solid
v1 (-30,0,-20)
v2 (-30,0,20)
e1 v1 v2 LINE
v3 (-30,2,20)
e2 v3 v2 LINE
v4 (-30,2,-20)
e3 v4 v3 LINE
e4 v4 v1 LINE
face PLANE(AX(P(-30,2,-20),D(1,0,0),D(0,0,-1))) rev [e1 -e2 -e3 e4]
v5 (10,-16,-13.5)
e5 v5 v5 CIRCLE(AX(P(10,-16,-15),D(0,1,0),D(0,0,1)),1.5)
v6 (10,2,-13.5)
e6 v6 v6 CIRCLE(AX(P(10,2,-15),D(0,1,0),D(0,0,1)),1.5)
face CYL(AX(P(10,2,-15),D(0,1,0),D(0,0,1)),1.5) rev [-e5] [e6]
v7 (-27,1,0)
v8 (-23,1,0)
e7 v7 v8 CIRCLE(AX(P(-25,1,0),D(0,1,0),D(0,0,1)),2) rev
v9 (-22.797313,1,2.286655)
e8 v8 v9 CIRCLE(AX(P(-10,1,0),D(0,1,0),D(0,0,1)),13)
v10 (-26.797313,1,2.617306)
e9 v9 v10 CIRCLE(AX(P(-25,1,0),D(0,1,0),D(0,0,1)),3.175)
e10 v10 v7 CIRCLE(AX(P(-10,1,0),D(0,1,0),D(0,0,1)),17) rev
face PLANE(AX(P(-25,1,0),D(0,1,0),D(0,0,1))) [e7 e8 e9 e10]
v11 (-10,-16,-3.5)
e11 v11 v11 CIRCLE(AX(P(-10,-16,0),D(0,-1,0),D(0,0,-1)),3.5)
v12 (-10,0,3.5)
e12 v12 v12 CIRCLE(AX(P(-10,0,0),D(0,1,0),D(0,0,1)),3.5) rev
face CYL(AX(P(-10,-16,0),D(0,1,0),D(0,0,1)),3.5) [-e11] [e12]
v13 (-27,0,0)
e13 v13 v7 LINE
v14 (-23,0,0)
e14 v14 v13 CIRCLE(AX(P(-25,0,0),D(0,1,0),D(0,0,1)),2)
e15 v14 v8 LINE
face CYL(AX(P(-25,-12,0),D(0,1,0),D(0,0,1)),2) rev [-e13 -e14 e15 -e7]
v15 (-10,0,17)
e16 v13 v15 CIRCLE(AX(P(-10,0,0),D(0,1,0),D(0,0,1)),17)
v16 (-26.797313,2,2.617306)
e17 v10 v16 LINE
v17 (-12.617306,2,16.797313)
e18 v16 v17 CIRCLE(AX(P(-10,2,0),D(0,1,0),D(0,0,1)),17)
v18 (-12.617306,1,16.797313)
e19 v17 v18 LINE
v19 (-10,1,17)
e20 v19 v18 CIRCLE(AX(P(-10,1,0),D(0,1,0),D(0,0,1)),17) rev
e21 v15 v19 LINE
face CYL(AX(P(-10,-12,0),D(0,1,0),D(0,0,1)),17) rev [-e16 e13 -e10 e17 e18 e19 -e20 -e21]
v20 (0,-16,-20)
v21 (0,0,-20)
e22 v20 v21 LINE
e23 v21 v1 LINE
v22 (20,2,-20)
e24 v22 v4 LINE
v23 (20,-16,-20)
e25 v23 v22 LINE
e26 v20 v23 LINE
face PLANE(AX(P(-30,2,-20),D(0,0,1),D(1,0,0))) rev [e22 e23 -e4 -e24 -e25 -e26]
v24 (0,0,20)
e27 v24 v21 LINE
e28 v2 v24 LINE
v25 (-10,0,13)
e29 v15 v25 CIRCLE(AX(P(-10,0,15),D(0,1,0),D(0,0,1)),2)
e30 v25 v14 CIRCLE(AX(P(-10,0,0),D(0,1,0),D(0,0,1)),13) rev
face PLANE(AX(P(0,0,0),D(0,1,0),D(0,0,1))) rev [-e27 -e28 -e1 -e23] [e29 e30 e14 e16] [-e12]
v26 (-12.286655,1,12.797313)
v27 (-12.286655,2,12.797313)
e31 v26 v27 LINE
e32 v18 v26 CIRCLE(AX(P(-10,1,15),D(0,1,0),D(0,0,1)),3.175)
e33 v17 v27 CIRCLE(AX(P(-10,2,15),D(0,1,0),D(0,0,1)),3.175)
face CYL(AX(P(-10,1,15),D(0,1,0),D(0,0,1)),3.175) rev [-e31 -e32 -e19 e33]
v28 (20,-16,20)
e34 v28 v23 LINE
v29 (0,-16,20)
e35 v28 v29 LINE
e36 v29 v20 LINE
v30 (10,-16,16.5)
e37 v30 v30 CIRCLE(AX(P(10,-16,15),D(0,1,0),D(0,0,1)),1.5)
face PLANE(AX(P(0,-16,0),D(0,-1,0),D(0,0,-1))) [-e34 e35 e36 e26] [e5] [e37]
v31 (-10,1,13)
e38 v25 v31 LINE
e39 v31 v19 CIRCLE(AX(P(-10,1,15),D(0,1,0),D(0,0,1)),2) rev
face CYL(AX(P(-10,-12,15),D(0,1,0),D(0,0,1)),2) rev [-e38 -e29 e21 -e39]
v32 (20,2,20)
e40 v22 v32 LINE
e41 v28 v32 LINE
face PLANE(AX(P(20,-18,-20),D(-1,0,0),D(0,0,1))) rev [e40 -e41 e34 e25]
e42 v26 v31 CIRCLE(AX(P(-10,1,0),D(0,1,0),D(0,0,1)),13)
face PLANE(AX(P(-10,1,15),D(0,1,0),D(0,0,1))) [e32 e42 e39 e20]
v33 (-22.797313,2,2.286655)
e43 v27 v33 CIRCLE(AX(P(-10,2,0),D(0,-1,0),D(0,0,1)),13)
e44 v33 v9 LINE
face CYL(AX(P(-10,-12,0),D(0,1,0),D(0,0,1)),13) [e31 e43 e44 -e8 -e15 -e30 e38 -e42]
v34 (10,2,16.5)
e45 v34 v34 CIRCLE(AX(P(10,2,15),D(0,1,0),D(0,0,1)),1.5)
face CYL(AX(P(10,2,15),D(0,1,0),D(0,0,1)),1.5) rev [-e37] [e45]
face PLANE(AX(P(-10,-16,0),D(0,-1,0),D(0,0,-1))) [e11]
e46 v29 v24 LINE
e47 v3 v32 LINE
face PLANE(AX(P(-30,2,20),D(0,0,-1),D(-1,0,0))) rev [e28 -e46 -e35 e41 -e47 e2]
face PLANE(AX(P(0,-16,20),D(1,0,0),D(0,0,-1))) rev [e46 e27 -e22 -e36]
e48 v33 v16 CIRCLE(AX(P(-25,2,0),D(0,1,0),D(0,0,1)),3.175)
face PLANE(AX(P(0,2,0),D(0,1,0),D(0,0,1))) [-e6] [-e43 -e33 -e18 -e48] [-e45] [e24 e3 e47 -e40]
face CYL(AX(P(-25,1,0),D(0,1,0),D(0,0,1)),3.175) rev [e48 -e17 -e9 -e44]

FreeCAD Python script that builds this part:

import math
import FreeCAD as App
import Part
import Sketcher
from FreeCAD import Vector


def add_polygon(sketch, points):
    """Adds a closed chain of lines whose ends are joined by coincident constraints."""
    first, n = sketch.GeometryCount, len(points)
    for a, b in zip(points, points[1:] + points[:1]):
        sketch.addGeometry(Part.LineSegment(App.Vector(*a, 0), App.Vector(*b, 0)), False)
    for i in range(n):
        sketch.addConstraint(Sketcher.Constraint("Coincident", first + i, 2, first + (i + 1) % n, 1))

doc = App.newDocument("Part")
params = doc.addObject("Spreadsheet::Sheet", "Params")
for row, (alias, value) in enumerate([
    ("sketch1_width", "60 mm"),
    ("sketch1_height", "40 mm"),
    ("pad1_length", "2 mm"),
    ("sketch2_radius", "13 mm"),
    ("sketch2_radius2", "2 mm"),
    ("pocket1_length", "14 mm"),
    ("sketch3_diameter", "7 mm"),
    ("pad2_length", "16 mm"),
    ("sketch4_width", "30 mm"),
    ("sketch4_height", "40 mm"),
    ("pad3_length", "16 mm"),
    ("sketch5_diameter", "6.35 mm"),
    ("pocket2_length", "1 mm"),
    ("sketch6_width", "10 mm"),
    ("sketch6_height", "40 mm"),
    ("pocket3_length", "20 mm"),
    ("sketch7_diameter", "3 mm"),
    ("hole_diameter", "3 mm"),
], start=1):
    params.set(f"A{row}", alias)
    params.set(f"B{row}", "=" + value)
    params.setAlias(f"B{row}", alias)

body = doc.addObject("PartDesign::Body", "Body")

sketch1 = doc.addObject("Sketcher::SketchObject", "Sketch")
body.addObject(sketch1)
sketch1.AttachmentSupport = (doc.XZ_Plane, [""])
sketch1.MapMode = "FlatFace"
add_polygon(sketch1, [(-30, -20), (-30, 20), (30, 20), (30, -20)])
sketch1.addConstraint([
    Sketcher.Constraint("Vertical", 0),
    Sketcher.Constraint("Horizontal", 1),
    Sketcher.Constraint("Vertical", 2),
    Sketcher.Constraint("Horizontal", 3),
    Sketcher.Constraint("Symmetric", 0, 2, 2, 2, -1, 1),
    Sketcher.Constraint("DistanceX", 1, 1, 1, 2, 60.0),
    Sketcher.Constraint("DistanceY", 0, 1, 0, 2, 40.0),
])
sketch1.setExpression("Constraints[9]", "Params.sketch1_width")
sketch1.setExpression("Constraints[10]", "Params.sketch1_height")
pad1 = doc.addObject("PartDesign::Pad", "Pad")
body.addObject(pad1)
pad1.Profile = sketch1
pad1.setExpression("Length", "Params.pad1_length")
pad1.Reversed = True

sketch2 = doc.addObject("Sketcher::SketchObject", "Sketch001")
body.addObject(sketch2)
sketch2.AttachmentSupport = (doc.XZ_Plane, [""])
sketch2.MapMode = "FlatFace"
sketch2.AttachmentOffset = App.Placement(Vector(0, 0, -2), App.Rotation())
sketch2.addGeometry([
    Part.ArcOfCircle(Part.Circle(Vector(-10, 0, 0), Vector(0, 0, 1), 13), math.radians(90), math.radians(180)),
    Part.ArcOfCircle(Part.Circle(Vector(-25, 0, 0), Vector(0, 0, 1), 2), math.radians(180), math.radians(360)),
    Part.ArcOfCircle(Part.Circle(Vector(-10, 0, 0), Vector(0, 0, 1), 17), math.radians(90), math.radians(180)),
    Part.ArcOfCircle(Part.Circle(Vector(-10, 15, 0), Vector(0, 0, 1), 2), math.radians(-90), math.radians(90)),
], False)
sketch2.addConstraint([
    Sketcher.Constraint("Tangent", 0, 2, 1, 2),
    Sketcher.Constraint("Tangent", 1, 1, 2, 2),
    Sketcher.Constraint("Tangent", 2, 1, 3, 2),
    Sketcher.Constraint("Tangent", 3, 1, 0, 1),
    Sketcher.Constraint("Coincident", 2, 3, 0, 3),
    Sketcher.Constraint("PointOnObject", 0, 3, -1),
    Sketcher.Constraint("PointOnObject", 1, 3, -1),
    Sketcher.Constraint("Vertical", 2, 3, 3, 3),
    Sketcher.Constraint("Radius", 0, 13.0),
    Sketcher.Constraint("Radius", 1, 2.0),
    Sketcher.Constraint("DistanceX", 0, 3, -1, 1, 10.0),
])
sketch2.setExpression("Constraints[8]", "Params.sketch2_radius")
sketch2.setExpression("Constraints[9]", "Params.sketch2_radius2")
pocket1 = doc.addObject("PartDesign::Pocket", "Pocket")
body.addObject(pocket1)
pocket1.Profile = sketch2
pocket1.setExpression("Length", "Params.pocket1_length")
pocket1.Reversed = True

sketch3 = doc.addObject("Sketcher::SketchObject", "Sketch002")
body.addObject(sketch3)
sketch3.AttachmentSupport = (doc.XZ_Plane, [""])
sketch3.MapMode = "FlatFace"
sketch3.addGeometry(Part.Circle(Vector(-10, 0, 0), Vector(0, 0, 1), 3.5), False)
sketch3.addConstraint([
    Sketcher.Constraint("PointOnObject", 0, 3, -1),
    Sketcher.Constraint("Diameter", 0, 7.0),
    Sketcher.Constraint("DistanceX", 0, 3, -1, 1, 10.0),
])
sketch3.setExpression("Constraints[1]", "Params.sketch3_diameter")
pad2 = doc.addObject("PartDesign::Pad", "Pad001")
body.addObject(pad2)
pad2.Profile = sketch3
pad2.setExpression("Length", "Params.pad2_length")

sketch4 = doc.addObject("Sketcher::SketchObject", "Sketch003")
body.addObject(sketch4)
sketch4.AttachmentSupport = (doc.XZ_Plane, [""])
sketch4.MapMode = "FlatFace"
add_polygon(sketch4, [(0, 20), (0, -20), (30, -20), (30, 20)])
sketch4.addConstraint([
    Sketcher.Constraint("Vertical", 0),
    Sketcher.Constraint("Horizontal", 1),
    Sketcher.Constraint("Vertical", 2),
    Sketcher.Constraint("Horizontal", 3),
    Sketcher.Constraint("Symmetric", 0, 2, 3, 2, -1, 1),
    Sketcher.Constraint("DistanceX", 1, 1, 1, 2, 30.0),
    Sketcher.Constraint("DistanceY", 0, 2, 0, 1, 40.0),
])
sketch4.setExpression("Constraints[9]", "Params.sketch4_width")
sketch4.setExpression("Constraints[10]", "Params.sketch4_height")
pad3 = doc.addObject("PartDesign::Pad", "Pad002")
body.addObject(pad3)
pad3.Profile = sketch4
pad3.setExpression("Length", "Params.pad3_length")

sketch5 = doc.addObject("Sketcher::SketchObject", "Sketch004")
body.addObject(sketch5)
sketch5.AttachmentSupport = (doc.XZ_Plane, [""])
sketch5.MapMode = "FlatFace"
sketch5.AttachmentOffset = App.Placement(Vector(0, 0, -2), App.Rotation())
sketch5.addGeometry([
    Part.Circle(Vector(-25, 0, 0), Vector(0, 0, 1), 3.175),
    Part.Circle(Vector(-10, 15, 0), Vector(0, 0, 1), 3.175),
], False)
sketch5.addConstraint([
    Sketcher.Constraint("Equal", 0, 1),
    Sketcher.Constraint("PointOnObject", 0, 3, -1),
    Sketcher.Constraint("Diameter", 0, 6.35),
    Sketcher.Constraint("DistanceX", 0, 3, -1, 1, 25.0),
    Sketcher.Constraint("DistanceX", 1, 3, -1, 1, 10.0),
    Sketcher.Constraint("DistanceY", -1, 1, 1, 3, 15.0),
])
sketch5.setExpression("Constraints[2]", "Params.sketch5_diameter")
pocket2 = doc.addObject("PartDesign::Pocket", "Pocket001")
body.addObject(pocket2)
pocket2.Profile = sketch5
pocket2.setExpression("Length", "Params.pocket2_length")
pocket2.Reversed = True

sketch6 = doc.addObject("Sketcher::SketchObject", "Sketch005")
body.addObject(sketch6)
sketch6.AttachmentSupport = (doc.XZ_Plane, [""])
sketch6.MapMode = "FlatFace"
sketch6.AttachmentOffset = App.Placement(Vector(0, 0, -2), App.Rotation())
add_polygon(sketch6, [(20, -20), (20, 20), (30, 20), (30, -20)])
sketch6.addConstraint([
    Sketcher.Constraint("Vertical", 0),
    Sketcher.Constraint("Horizontal", 1),
    Sketcher.Constraint("Vertical", 2),
    Sketcher.Constraint("Horizontal", 3),
    Sketcher.Constraint("DistanceX", 1, 1, 1, 2, 10.0),
    Sketcher.Constraint("DistanceY", 0, 1, 0, 2, 40.0),
    Sketcher.Constraint("DistanceX", -1, 1, 0, 2, 20.0),
    Sketcher.Constraint("DistanceY", -1, 1, 0, 2, 20.0),
])
sketch6.setExpression("Constraints[8]", "Params.sketch6_width")
sketch6.setExpression("Constraints[9]", "Params.sketch6_height")
pocket3 = doc.addObject("PartDesign::Pocket", "Pocket002")
body.addObject(pocket3)
pocket3.Profile = sketch6
pocket3.setExpression("Length", "Params.pocket3_length")
pocket3.Reversed = True

sketch7 = doc.addObject("Sketcher::SketchObject", "Sketch006")
body.addObject(sketch7)
sketch7.AttachmentSupport = (doc.XZ_Plane, [""])
sketch7.MapMode = "FlatFace"
sketch7.AttachmentOffset = App.Placement(Vector(0, 0, -2), App.Rotation())
sketch7.addGeometry([
    Part.Circle(Vector(10, -15, 0), Vector(0, 0, 1), 1.5),
    Part.Circle(Vector(10, 15, 0), Vector(0, 0, 1), 1.5),
], False)
sketch7.addConstraint([
    Sketcher.Constraint("Equal", 0, 1),
    Sketcher.Constraint("Symmetric", 0, 3, 1, 3, -1),
    Sketcher.Constraint("Diameter", 0, 3.0),
    Sketcher.Constraint("DistanceX", -1, 1, 0, 3, 10.0),
    Sketcher.Constraint("DistanceY", 0, 3, -1, 1, 15.0),
])
sketch7.setExpression("Constraints[2]", "Params.sketch7_diameter")
doc.recompute()
hole = doc.addObject("PartDesign::Hole", "Hole")
body.addObject(hole)
hole.Profile = sketch7
hole.ThreadType = "None"
hole.setExpression("Diameter", "Params.hole_diameter")
hole.DepthType = "ThroughAll"
hole.Reversed = True

doc.recompute()
